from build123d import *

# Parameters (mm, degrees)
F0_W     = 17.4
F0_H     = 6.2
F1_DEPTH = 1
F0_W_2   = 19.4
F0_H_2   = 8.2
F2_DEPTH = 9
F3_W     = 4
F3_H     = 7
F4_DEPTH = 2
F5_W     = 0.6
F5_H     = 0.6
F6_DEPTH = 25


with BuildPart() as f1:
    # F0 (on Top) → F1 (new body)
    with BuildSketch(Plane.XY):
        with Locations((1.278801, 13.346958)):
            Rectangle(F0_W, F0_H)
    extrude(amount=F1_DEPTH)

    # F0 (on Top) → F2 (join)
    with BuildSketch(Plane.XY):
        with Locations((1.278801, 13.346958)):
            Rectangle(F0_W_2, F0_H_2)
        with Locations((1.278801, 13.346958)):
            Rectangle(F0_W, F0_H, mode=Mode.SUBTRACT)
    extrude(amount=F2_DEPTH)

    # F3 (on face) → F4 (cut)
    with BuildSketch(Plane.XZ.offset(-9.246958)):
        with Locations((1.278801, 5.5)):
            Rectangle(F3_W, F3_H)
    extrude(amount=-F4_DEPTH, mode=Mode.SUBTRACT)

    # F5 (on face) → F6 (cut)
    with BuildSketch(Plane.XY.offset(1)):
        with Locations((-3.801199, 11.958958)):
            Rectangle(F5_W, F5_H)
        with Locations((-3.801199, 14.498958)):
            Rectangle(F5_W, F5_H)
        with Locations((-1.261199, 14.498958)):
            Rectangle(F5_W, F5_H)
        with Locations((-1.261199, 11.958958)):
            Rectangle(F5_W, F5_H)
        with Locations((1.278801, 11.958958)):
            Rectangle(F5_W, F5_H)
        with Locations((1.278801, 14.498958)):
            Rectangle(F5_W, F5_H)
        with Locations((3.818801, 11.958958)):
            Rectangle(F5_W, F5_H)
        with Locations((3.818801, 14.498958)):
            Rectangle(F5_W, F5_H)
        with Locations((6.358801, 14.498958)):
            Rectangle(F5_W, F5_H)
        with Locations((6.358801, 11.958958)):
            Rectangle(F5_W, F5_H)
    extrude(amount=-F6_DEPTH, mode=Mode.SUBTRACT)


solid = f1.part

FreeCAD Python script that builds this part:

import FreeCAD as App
import Part
import Sketcher


def add_polygon(sketch, points):
    """Adds a closed chain of lines whose ends are joined by coincident constraints."""
    first, n = sketch.GeometryCount, len(points)
    for a, b in zip(points, points[1:] + points[:1]):
        sketch.addGeometry(Part.LineSegment(App.Vector(*a, 0), App.Vector(*b, 0)), False)
    for i in range(n):
        sketch.addConstraint(Sketcher.Constraint("Coincident", first + i, 2, first + (i + 1) % n, 1))

doc = App.newDocument("Part")
body = doc.addObject("PartDesign::Body", "Body")

# Sketch on XY plane
sketch1 = doc.addObject("Sketcher::SketchObject", "Sketch")
body.addObject(sketch1)
sketch1.AttachmentSupport = (doc.XY_Plane, [""])
sketch1.MapMode = "FlatFace"
add_polygon(sketch1, [(-7.421199, 16.446958), (-7.421199, 10.246958), (9.978801, 10.246958), (9.978801, 16.446958)])  # lines 0-3
sketch1.addConstraint(Sketcher.Constraint("Vertical", 0))
sketch1.addConstraint(Sketcher.Constraint("Horizontal", 1))
sketch1.addConstraint(Sketcher.Constraint("Vertical", 2))
sketch1.addConstraint(Sketcher.Constraint("Horizontal", 3))
sketch1.addConstraint(Sketcher.Constraint("DistanceX", 1, 1, 1, 2, 17.4))
sketch1.addConstraint(Sketcher.Constraint("DistanceY", 0, 2, 0, 1, 6.2))
sketch1.addConstraint(Sketcher.Constraint("DistanceX", 0, 2, -1, 1, 7.421199))
sketch1.addConstraint(Sketcher.Constraint("DistanceY", -1, 1, 0, 2, 10.246958))
pad1 = doc.addObject("PartDesign::Pad", "Pad")
body.addObject(pad1)
pad1.Profile = sketch1
pad1.Length = 1

# Sketch on XY plane
sketch2 = doc.addObject("Sketcher::SketchObject", "Sketch001")
body.addObject(sketch2)
sketch2.AttachmentSupport = (doc.XY_Plane, [""])
sketch2.MapMode = "FlatFace"
add_polygon(sketch2, [(-8.421199, 17.446958), (-8.421199, 9.246958), (10.978801, 9.246958), (10.978801, 17.446958)])  # lines 0-3
add_polygon(sketch2, [(9.978801, 10.246958), (-7.421199, 10.246958), (-7.421199, 16.446958), (9.978801, 16.446958)])  # lines 4-7
sketch2.addConstraint(Sketcher.Constraint("Vertical", 0))
sketch2.addConstraint(Sketcher.Constraint("Horizontal", 1))
sketch2.addConstraint(Sketcher.Constraint("Vertical", 2))
sketch2.addConstraint(Sketcher.Constraint("Horizontal", 3))
sketch2.addConstraint(Sketcher.Constraint("Horizontal", 4))
sketch2.addConstraint(Sketcher.Constraint("Vertical", 5))
sketch2.addConstraint(Sketcher.Constraint("Horizontal", 6))
sketch2.addConstraint(Sketcher.Constraint("Vertical", 7))
sketch2.addConstraint(Sketcher.Constraint("DistanceX", 1, 1, 1, 2, 19.4))
sketch2.addConstraint(Sketcher.Constraint("DistanceX", 4, 2, 4, 1, 17.4))
sketch2.addConstraint(Sketcher.Constraint("DistanceY", 0, 2, 0, 1, 8.2))
sketch2.addConstraint(Sketcher.Constraint("DistanceY", 5, 1, 5, 2, 6.2))
sketch2.addConstraint(Sketcher.Constraint("DistanceX", 0, 2, 4, 2, 1.0))
sketch2.addConstraint(Sketcher.Constraint("DistanceY", 0, 2, 4, 2, 1.0))
sketch2.addConstraint(Sketcher.Constraint("DistanceX", 0, 2, -1, 1, 8.421199))
sketch2.addConstraint(Sketcher.Constraint("DistanceY", -1, 1, 0, 2, 9.246958))
pad2 = doc.addObject("PartDesign::Pad", "Pad001")
body.addObject(pad2)
pad2.Profile = sketch2
pad2.Length = 9

# Sketch on XZ plane
sketch3 = doc.addObject("Sketcher::SketchObject", "Sketch002")
body.addObject(sketch3)
sketch3.AttachmentSupport = (doc.XZ_Plane, [""])
sketch3.MapMode = "FlatFace"
sketch3.AttachmentOffset = App.Placement(App.Vector(0, 0, -9.246958), App.Rotation())
add_polygon(sketch3, [(-0.721199, 9), (-0.721199, 2), (3.278801, 2), (3.278801, 9)])  # lines 0-3
sketch3.addConstraint(Sketcher.Constraint("Vertical", 0))
sketch3.addConstraint(Sketcher.Constraint("Horizontal", 1))
sketch3.addConstraint(Sketcher.Constraint("Vertical", 2))
sketch3.addConstraint(Sketcher.Constraint("Horizontal", 3))
sketch3.addConstraint(Sketcher.Constraint("DistanceX", 1, 1, 1, 2, 4.0))
sketch3.addConstraint(Sketcher.Constraint("DistanceY", 0, 2, 0, 1, 7.0))
sketch3.addConstraint(Sketcher.Constraint("DistanceY", -1, 1, 0, 2, 2.0))
sketch3.addConstraint(Sketcher.Constraint("DistanceX", 0, 2, -1, 1, 0.721199))
pocket1 = doc.addObject("PartDesign::Pocket", "Pocket")
body.addObject(pocket1)
pocket1.Profile = sketch3
pocket1.Length = 2

# Sketch on XY plane
sketch4 = doc.addObject("Sketcher::SketchObject", "Sketch003")
body.addObject(sketch4)
sketch4.AttachmentSupport = (doc.XY_Plane, [""])
sketch4.MapMode = "FlatFace"
sketch4.AttachmentOffset = App.Placement(App.Vector(0, 0, 1), App.Rotation())
add_polygon(sketch4, [(-4.101199, 12.258958), (-4.101199, 11.658958), (-3.501199, 11.658958), (-3.501199, 12.258958)])  # lines 0-3
add_polygon(sketch4, [(-4.101199, 14.798958), (-4.101199, 14.198958), (-3.501199, 14.198958), (-3.501199, 14.798958)])  # lines 4-7
add_polygon(sketch4, [(-1.561199, 14.798958), (-1.561199, 14.198958), (-0.961199, 14.198958), (-0.961199, 14.798958)])  # lines 8-11
add_polygon(sketch4, [(-1.561199, 12.258958), (-1.561199, 11.658958), (-0.961199, 11.658958), (-0.961199, 12.258958)])  # lines 12-15
add_polygon(sketch4, [(0.978801, 12.258958), (0.978801, 11.658958), (1.578801, 11.658958), (1.578801, 12.258958)])  # lines 16-19
add_polygon(sketch4, [(0.978801, 14.798958), (0.978801, 14.198958), (1.578801, 14.198958), (1.578801, 14.798958)])  # lines 20-23
add_polygon(sketch4, [(3.518801, 12.258958), (3.518801, 11.658958), (4.118801, 11.658958), (4.118801, 12.258958)])  # lines 24-27
add_polygon(sketch4, [(3.518801, 14.798958), (3.518801, 14.198958), (4.118801, 14.198958), (4.118801, 14.798958)])  # lines 28-31
add_polygon(sketch4, [(6.058801, 14.798958), (6.058801, 14.198958), (6.658801, 14.198958), (6.658801, 14.798958)])  # lines 32-35
add_polygon(sketch4, [(6.058801, 12.258958), (6.058801, 11.658958), (6.658801, 11.658958), (6.658801, 12.258958)])  # lines 36-39
sketch4.addConstraint(Sketcher.Constraint("Vertical", 0))
sketch4.addConstraint(Sketcher.Constraint("Horizontal", 1))
sketch4.addConstraint(Sketcher.Constraint("Vertical", 2))
sketch4.addConstraint(Sketcher.Constraint("Horizontal", 3))
sketch4.addConstraint(Sketcher.Constraint("Vertical", 4))
sketch4.addConstraint(Sketcher.Constraint("Horizontal", 5))
sketch4.addConstraint(Sketcher.Constraint("Vertical", 6))
sketch4.addConstraint(Sketcher.Constraint("Horizontal", 7))
sketch4.addConstraint(Sketcher.Constraint("Vertical", 8))
sketch4.addConstraint(Sketcher.Constraint("Horizontal", 9))
sketch4.addConstraint(Sketcher.Constraint("Vertical", 10))
sketch4.addConstraint(Sketcher.Constraint("Horizontal", 11))
sketch4.addConstraint(Sketcher.Constraint("Vertical", 12))
sketch4.addConstraint(Sketcher.Constraint("Horizontal", 13))
sketch4.addConstraint(Sketcher.Constraint("Vertical", 14))
sketch4.addConstraint(Sketcher.Constraint("Horizontal", 15))
sketch4.addConstraint(Sketcher.Constraint("Vertical", 16))
sketch4.addConstraint(Sketcher.Constraint("Horizontal", 17))
sketch4.addConstraint(Sketcher.Constraint("Vertical", 18))
sketch4.addConstraint(Sketcher.Constraint("Horizontal", 19))
sketch4.addConstraint(Sketcher.Constraint("Vertical", 20))
sketch4.addConstraint(Sketcher.Constraint("Horizontal", 21))
sketch4.addConstraint(Sketcher.Constraint("Vertical", 22))
sketch4.addConstraint(Sketcher.Constraint("Horizontal", 23))
sketch4.addConstraint(Sketcher.Constraint("Vertical", 24))
sketch4.addConstraint(Sketcher.Constraint("Horizontal", 25))
sketch4.addConstraint(Sketcher.Constraint("Vertical", 26))
sketch4.addConstraint(Sketcher.Constraint("Horizontal", 27))
sketch4.addConstraint(Sketcher.Constraint("Vertical", 28))
sketch4.addConstraint(Sketcher.Constraint("Horizontal", 29))
sketch4.addConstraint(Sketcher.Constraint("Vertical", 30))
sketch4.addConstraint(Sketcher.Constraint("Horizontal", 31))
sketch4.addConstraint(Sketcher.Constraint("Vertical", 32))
sketch4.addConstraint(Sketcher.Constraint("Horizontal", 33))
sketch4.addConstraint(Sketcher.Constraint("Vertical", 34))
sketch4.addConstraint(Sketcher.Constraint("Horizontal", 35))
sketch4.addConstraint(Sketcher.Constraint("Vertical", 36))
sketch4.addConstraint(Sketcher.Constraint("Horizontal", 37))
sketch4.addConstraint(Sketcher.Constraint("Vertical", 38))
sketch4.addConstraint(Sketcher.Constraint("Horizontal", 39))
sketch4.addConstraint(Sketcher.Constraint("Horizontal", 5, 2, 8, 2))
sketch4.addConstraint(Sketcher.Constraint("Horizontal", 7, 2, 10, 2))
sketch4.addConstraint(Sketcher.Constraint("Horizontal", 1, 2, 12, 2))
sketch4.addConstraint(Sketcher.Constraint("Horizontal", 3, 2, 14, 2))
sketch4.addConstraint(Sketcher.Constraint("Horizontal", 13, 2, 16, 2))
sketch4.addConstraint(Sketcher.Constraint("Horizontal", 15, 2, 18, 2))
sketch4.addConstraint(Sketcher.Constraint("Horizontal", 9, 2, 20, 2))
sketch4.addConstraint(Sketcher.Constraint("Horizontal", 11, 2, 22, 2))
sketch4.addConstraint(Sketcher.Constraint("Horizontal", 17, 2, 24, 2))
sketch4.addConstraint(Sketcher.Constraint("Horizontal", 19, 2, 26, 2))
sketch4.addConstraint(Sketcher.Constraint("Horizontal", 21, 2, 28, 2))
sketch4.addConstraint(Sketcher.Constraint("Horizontal", 23, 2, 30, 2))
sketch4.addConstraint(Sketcher.Constraint("Horizontal", 29, 2, 32, 2))
sketch4.addConstraint(Sketcher.Constraint("Horizontal", 31, 2, 34, 2))
sketch4.addConstraint(Sketcher.Constraint("Horizontal", 25, 2, 36, 2))
sketch4.addConstraint(Sketcher.Constraint("Horizontal", 27, 2, 38, 2))
sketch4.addConstraint(Sketcher.Constraint("Vertical", 3, 2, 4, 2))
sketch4.addConstraint(Sketcher.Constraint("Vertical", 2, 2, 5, 2))
sketch4.addConstraint(Sketcher.Constraint("Vertical", 11, 2, 12, 2))
sketch4.addConstraint(Sketcher.Constraint("Vertical", 10, 2, 13, 2))
sketch4.addConstraint(Sketcher.Constraint("Vertical", 19, 2, 20, 2))
sketch4.addConstraint(Sketcher.Constraint("Vertical", 18, 2, 21, 2))
sketch4.addConstraint(Sketcher.Constraint("Vertical", 27, 2, 28, 2))
sketch4.addConstraint(Sketcher.Constraint("Vertical", 26, 2, 29, 2))
sketch4.addConstraint(Sketcher.Constraint("Vertical", 35, 2, 36, 2))
sketch4.addConstraint(Sketcher.Constraint("Vertical", 34, 2, 37, 2))
sketch4.addConstraint(Sketcher.Constraint("Equal", 7, 9))
sketch4.addConstraint(Sketcher.Constraint("Equal", 15, 17))
sketch4.addConstraint(Sketcher.Constraint("Equal", 23, 25))
sketch4.addConstraint(Sketcher.Constraint("Equal", 31, 33))
sketch4.addConstraint(Sketcher.Constraint("Equal", 39, 0))
sketch4.addConstraint(Sketcher.Constraint("Equal", 2, 4))
sketch4.addConstraint(Sketcher.Constraint("DistanceX", 1, 1, 1, 2, 0.6))
sketch4.addConstraint(Sketcher.Constraint("DistanceY", 3, 2, 4, 2, 1.94))
sketch4.addConstraint(Sketcher.Constraint("DistanceX", 5, 2, 8, 2, 1.94))
sketch4.addConstraint(Sketcher.Constraint("DistanceX", 13, 2, 16, 2, 1.94))
sketch4.addConstraint(Sketcher.Constraint("DistanceX", 17, 2, 24, 2, 1.94))
sketch4.addConstraint(Sketcher.Constraint("DistanceX", 29, 2, 32, 2, 1.94))
sketch4.addConstraint(Sketcher.Constraint("DistanceX", 0, 2, -1, 1, 4.101199))
sketch4.addConstraint(Sketcher.Constraint("DistanceY", -1, 1, 6, 2, 14.798958))
pocket2 = doc.addObject("PartDesign::Pocket", "Pocket001")
body.addObject(pocket2)
pocket2.Profile = sketch4
pocket2.Length = 25

doc.recompute()
